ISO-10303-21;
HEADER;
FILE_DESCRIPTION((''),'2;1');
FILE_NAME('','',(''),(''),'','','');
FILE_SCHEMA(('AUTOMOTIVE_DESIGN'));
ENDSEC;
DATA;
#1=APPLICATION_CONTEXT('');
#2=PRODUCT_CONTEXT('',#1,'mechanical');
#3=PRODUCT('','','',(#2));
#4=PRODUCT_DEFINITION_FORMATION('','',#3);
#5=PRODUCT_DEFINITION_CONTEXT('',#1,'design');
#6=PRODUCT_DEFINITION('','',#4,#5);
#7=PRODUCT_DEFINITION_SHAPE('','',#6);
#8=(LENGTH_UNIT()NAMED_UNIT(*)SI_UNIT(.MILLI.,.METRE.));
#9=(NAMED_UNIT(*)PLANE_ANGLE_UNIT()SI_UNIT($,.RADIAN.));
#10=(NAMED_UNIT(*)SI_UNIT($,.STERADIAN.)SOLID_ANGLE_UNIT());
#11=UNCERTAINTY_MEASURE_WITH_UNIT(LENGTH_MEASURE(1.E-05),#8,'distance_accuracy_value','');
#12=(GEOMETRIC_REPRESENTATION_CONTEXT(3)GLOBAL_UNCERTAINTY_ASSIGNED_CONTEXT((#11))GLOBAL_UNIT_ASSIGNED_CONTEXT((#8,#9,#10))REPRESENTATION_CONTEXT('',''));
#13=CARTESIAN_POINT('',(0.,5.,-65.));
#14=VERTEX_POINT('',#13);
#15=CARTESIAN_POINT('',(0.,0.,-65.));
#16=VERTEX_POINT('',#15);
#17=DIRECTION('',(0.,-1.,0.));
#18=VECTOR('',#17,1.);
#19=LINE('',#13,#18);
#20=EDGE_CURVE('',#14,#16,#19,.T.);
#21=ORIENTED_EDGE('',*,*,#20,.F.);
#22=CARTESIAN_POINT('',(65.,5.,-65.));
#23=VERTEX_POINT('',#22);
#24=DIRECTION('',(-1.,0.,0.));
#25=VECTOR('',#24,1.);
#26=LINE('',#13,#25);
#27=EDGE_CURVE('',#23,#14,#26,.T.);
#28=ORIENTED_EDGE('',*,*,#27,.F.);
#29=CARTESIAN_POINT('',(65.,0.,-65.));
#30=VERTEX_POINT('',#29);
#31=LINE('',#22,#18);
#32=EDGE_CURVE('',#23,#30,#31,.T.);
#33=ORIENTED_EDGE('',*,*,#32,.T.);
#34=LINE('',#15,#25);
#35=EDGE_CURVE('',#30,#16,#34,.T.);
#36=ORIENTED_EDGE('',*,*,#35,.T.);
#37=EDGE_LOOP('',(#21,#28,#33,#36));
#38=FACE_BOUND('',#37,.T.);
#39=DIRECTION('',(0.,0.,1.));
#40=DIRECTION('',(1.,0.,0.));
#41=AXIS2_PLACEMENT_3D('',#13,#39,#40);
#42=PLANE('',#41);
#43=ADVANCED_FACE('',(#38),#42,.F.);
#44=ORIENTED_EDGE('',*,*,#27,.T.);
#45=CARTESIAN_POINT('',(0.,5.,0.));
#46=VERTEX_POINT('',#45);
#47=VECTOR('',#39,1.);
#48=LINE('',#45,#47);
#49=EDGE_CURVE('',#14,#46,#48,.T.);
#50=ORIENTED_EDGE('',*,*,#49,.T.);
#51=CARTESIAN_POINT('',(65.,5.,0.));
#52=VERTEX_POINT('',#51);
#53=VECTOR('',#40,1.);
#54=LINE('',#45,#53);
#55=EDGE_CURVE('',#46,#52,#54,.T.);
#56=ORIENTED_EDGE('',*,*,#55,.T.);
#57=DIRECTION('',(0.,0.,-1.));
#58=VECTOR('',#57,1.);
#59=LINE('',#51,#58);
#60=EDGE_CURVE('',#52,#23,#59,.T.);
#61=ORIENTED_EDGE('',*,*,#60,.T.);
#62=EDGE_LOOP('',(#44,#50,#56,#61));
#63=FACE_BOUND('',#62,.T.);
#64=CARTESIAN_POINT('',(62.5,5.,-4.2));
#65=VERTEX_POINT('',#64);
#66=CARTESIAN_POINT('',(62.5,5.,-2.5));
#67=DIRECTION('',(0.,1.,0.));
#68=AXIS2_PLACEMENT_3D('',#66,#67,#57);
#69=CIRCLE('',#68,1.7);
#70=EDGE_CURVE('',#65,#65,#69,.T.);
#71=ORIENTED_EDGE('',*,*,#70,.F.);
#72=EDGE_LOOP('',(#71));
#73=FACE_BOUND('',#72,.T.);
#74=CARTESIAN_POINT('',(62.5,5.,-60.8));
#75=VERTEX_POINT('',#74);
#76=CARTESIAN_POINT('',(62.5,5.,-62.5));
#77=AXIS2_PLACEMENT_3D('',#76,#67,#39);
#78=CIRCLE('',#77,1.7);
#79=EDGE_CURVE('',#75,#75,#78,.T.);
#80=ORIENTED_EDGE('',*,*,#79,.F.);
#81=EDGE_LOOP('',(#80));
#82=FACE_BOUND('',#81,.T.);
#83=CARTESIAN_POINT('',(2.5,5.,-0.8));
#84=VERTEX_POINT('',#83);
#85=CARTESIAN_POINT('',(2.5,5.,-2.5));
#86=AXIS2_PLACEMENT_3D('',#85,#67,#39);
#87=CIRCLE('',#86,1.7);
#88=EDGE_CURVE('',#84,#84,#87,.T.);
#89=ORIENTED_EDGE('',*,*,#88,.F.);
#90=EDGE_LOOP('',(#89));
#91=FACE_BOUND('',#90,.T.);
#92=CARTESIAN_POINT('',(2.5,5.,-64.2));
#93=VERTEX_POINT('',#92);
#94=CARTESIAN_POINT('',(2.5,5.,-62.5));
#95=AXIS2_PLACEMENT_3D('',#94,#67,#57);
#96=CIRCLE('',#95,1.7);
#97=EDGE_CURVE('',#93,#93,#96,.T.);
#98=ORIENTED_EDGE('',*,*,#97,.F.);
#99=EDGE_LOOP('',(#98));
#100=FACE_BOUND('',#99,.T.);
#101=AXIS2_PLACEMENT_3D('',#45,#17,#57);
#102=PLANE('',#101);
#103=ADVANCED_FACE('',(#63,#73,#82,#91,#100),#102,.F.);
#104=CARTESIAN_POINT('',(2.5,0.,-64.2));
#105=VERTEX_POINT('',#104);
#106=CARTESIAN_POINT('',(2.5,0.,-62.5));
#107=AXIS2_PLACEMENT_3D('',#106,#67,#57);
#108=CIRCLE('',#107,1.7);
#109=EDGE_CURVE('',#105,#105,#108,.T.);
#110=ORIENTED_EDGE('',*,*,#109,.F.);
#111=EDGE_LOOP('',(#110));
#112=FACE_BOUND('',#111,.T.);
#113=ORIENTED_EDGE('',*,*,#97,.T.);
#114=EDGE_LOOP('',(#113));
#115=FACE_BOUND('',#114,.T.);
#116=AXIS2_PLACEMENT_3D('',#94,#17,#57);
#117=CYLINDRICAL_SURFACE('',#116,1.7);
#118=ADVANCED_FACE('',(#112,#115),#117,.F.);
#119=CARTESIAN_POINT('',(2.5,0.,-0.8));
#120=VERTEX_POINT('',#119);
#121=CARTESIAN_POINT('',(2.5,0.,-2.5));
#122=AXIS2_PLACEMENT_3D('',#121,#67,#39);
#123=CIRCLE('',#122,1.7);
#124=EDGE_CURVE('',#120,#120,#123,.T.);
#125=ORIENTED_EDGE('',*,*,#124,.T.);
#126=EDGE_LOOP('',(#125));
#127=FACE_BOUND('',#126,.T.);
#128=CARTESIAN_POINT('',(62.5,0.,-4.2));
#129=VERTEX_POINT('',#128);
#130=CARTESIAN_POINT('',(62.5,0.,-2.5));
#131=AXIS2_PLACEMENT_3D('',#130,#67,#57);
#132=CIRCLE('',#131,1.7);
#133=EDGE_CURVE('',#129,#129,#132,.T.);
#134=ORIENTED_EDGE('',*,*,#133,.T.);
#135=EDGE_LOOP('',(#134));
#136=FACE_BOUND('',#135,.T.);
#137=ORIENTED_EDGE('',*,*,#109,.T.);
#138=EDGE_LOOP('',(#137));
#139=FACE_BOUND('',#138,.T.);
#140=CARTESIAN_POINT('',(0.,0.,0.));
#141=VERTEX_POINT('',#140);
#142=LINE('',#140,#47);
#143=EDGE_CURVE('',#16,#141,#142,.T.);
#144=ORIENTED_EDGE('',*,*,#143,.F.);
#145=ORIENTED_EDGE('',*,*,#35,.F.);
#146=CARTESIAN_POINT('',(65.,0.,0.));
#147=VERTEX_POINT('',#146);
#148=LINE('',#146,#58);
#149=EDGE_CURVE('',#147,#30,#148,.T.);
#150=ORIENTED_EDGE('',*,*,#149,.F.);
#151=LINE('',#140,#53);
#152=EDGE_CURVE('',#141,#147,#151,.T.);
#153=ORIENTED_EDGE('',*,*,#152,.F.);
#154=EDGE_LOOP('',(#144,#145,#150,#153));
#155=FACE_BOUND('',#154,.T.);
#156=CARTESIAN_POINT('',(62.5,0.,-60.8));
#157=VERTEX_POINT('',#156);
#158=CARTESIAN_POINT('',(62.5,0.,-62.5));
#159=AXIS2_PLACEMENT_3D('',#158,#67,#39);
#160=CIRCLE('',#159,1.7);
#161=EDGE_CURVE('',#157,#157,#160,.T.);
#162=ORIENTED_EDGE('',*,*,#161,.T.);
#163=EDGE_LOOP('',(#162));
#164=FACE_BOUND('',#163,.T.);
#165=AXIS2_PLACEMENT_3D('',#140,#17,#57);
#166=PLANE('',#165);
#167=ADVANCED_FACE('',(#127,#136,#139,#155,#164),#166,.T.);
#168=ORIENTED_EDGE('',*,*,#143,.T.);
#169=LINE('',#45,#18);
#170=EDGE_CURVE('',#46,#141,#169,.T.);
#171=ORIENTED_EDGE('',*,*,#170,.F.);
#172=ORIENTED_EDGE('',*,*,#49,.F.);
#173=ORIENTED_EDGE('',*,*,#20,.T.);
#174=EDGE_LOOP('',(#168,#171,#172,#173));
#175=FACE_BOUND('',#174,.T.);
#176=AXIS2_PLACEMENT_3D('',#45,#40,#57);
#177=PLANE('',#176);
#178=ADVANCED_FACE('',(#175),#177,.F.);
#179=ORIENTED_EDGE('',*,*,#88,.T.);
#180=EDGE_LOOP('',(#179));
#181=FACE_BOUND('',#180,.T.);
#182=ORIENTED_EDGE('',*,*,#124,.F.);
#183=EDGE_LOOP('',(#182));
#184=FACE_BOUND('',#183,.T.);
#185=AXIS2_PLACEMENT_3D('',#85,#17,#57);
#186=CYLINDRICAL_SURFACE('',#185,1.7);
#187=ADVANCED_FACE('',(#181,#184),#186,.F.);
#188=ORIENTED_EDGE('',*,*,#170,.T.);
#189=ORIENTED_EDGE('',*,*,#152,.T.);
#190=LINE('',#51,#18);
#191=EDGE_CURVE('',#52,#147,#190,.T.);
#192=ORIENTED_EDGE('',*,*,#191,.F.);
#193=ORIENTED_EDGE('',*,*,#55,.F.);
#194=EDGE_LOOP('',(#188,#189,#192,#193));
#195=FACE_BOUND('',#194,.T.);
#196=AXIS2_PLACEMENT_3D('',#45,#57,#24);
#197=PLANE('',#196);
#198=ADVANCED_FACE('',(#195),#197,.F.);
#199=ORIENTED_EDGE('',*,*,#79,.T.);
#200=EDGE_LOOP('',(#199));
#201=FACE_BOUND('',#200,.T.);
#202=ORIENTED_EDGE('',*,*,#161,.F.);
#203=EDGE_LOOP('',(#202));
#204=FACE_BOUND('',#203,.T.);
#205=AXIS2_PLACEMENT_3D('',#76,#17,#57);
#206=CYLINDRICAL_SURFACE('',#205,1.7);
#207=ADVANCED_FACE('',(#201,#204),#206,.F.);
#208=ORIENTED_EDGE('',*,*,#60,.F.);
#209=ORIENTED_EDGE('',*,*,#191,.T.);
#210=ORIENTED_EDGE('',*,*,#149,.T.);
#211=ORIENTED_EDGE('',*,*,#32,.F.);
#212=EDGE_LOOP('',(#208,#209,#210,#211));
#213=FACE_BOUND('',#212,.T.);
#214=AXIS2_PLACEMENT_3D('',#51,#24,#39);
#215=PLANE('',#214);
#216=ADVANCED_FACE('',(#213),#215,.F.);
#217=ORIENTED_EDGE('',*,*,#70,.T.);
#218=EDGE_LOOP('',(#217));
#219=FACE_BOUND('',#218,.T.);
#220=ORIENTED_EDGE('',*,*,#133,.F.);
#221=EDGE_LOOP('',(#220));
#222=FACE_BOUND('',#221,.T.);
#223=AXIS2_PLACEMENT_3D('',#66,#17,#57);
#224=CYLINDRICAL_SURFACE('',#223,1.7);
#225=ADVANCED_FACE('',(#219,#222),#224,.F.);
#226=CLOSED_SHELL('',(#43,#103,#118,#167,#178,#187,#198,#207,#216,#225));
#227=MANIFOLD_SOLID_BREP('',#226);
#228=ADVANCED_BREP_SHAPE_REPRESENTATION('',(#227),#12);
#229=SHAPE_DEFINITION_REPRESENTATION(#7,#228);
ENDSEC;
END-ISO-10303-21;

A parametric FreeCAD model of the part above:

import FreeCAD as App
import Part
import Sketcher
from FreeCAD import Vector
Q = App.Units.Quantity


def add_polygon(sketch, points):
    """Adds a closed chain of lines whose ends are joined by coincident constraints."""
    first, n = sketch.GeometryCount, len(points)
    for a, b in zip(points, points[1:] + points[:1]):
        sketch.addGeometry(Part.LineSegment(App.Vector(*a, 0), App.Vector(*b, 0)), False)
    for i in range(n):
        sketch.addConstraint(Sketcher.Constraint("Coincident", first + i, 2, first + (i + 1) % n, 1))

doc = App.newDocument("Part")
body = doc.addObject("PartDesign::Body", "Body")

# Sketch on XZ plane
sketch1 = body.newObject("Sketcher::SketchObject", "Sketch")
sketch1.AttachmentSupport = (doc.getObject("XZ_Plane"), [""])
sketch1.MapMode = "FlatFace"
add_polygon(sketch1, [(0, -65), (0, 0), (65, 0), (65, -65)])  # lines 0-3
sketch1.addGeometry(Part.Circle(Vector(2.5, -2.5, 0), Vector(0, 0, 1), 1.7), False)  # 4
sketch1.addGeometry(Part.Circle(Vector(62.5, -2.5, 0), Vector(0, 0, 1), 1.7), False)  # 5
sketch1.addGeometry(Part.Circle(Vector(2.5, -62.5, 0), Vector(0, 0, 1), 1.7), False)  # 6
sketch1.addGeometry(Part.Circle(Vector(62.5, -62.5, 0), Vector(0, 0, 1), 1.7), False)  # 7
sketch1.addConstraint(Sketcher.Constraint("Vertical", 0))
sketch1.addConstraint(Sketcher.Constraint("Horizontal", 1))
sketch1.addConstraint(Sketcher.Constraint("Vertical", 2))
sketch1.addConstraint(Sketcher.Constraint("Horizontal", 3))
sketch1.addConstraint(Sketcher.Constraint("Coincident", 0, 2, -1, 1))
sketch1.addConstraint(Sketcher.Constraint("Equal", 4, 5))
sketch1.addConstraint(Sketcher.Constraint("Equal", 5, 6))
sketch1.addConstraint(Sketcher.Constraint("Equal", 6, 7))
sketch1.addConstraint(Sketcher.Constraint("Horizontal", 4, 3, 5, 3))
sketch1.addConstraint(Sketcher.Constraint("Horizontal", 6, 3, 7, 3))
sketch1.addConstraint(Sketcher.Constraint("Vertical", 4, 3, 6, 3))
sketch1.addConstraint(Sketcher.Constraint("Vertical", 5, 3, 7, 3))
sketch1.addConstraint(Sketcher.Constraint("Equal", 3, 0))
sketch1.addConstraint(Sketcher.Constraint("Diameter", 4, Q("3.4 mm")))
sketch1.addConstraint(Sketcher.Constraint("DistanceX", 1, 1, 1, 2, Q("65 mm")))
sketch1.addConstraint(Sketcher.Constraint("DistanceX", 4, 3, 5, 3, Q("60 mm")))
sketch1.addConstraint(Sketcher.Constraint("DistanceY", 6, 3, 4, 3, Q("60 mm")))
sketch1.addConstraint(Sketcher.Constraint("DistanceX", -1, 1, 4, 3, Q("2.5 mm")))
sketch1.addConstraint(Sketcher.Constraint("DistanceY", 4, 3, -1, 1, Q("2.5 mm")))
pad1 = body.newObject("PartDesign::Pad", "Pad")
pad1.Profile = sketch1
pad1.Length = 5
pad1.Reversed = True

doc.recompute()
